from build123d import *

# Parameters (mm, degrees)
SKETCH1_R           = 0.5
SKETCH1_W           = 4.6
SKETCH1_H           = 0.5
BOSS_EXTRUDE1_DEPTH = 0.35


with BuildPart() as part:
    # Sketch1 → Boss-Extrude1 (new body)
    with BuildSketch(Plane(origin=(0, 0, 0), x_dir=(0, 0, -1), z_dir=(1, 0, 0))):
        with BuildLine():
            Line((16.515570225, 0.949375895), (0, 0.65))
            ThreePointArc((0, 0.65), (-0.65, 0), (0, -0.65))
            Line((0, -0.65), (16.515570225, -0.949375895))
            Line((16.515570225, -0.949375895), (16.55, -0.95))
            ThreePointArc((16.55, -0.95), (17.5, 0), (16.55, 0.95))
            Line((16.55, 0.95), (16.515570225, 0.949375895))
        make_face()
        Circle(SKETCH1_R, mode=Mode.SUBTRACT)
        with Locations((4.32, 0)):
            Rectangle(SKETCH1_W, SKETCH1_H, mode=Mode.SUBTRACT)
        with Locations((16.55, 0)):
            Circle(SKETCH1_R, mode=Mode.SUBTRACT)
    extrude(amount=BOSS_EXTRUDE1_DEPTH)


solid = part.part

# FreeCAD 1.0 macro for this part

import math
import FreeCAD as App
import Part
import Sketcher

V = App.Vector


def add_polygon(sketch, points):
    """Adds a closed chain of lines whose ends are joined by coincident constraints."""
    first, n = sketch.GeometryCount, len(points)
    for a, b in zip(points, points[1:] + points[:1]):
        sketch.addGeometry(Part.LineSegment(App.Vector(*a, 0), App.Vector(*b, 0)), False)
    for i in range(n):
        sketch.addConstraint(Sketcher.Constraint("Coincident", first + i, 2, first + (i + 1) % n, 1))

doc = App.newDocument("Part")
params = doc.addObject("Spreadsheet::Sheet", "Params")
for row, (alias, value) in enumerate([
    ("sketch1_diameter", "1 mm"),
    ("sketch1_radius", "0.65 mm"),
    ("sketch1_radius2", "0.95 mm"),
    ("sketch1_width", "0.5 mm"),
    ("sketch1_height", "4.6 mm"),
    ("pad1_length", "0.35 mm"),
], start=1):
    params.set(f"A{row}", alias)
    params.set(f"B{row}", "=" + value)
    params.setAlias(f"B{row}", alias)

body = doc.addObject("PartDesign::Body", "Body")

sketch1 = body.newObject("Sketcher::SketchObject", "Sketch")
sketch1.AttachmentSupport = (doc.getObject("YZ_Plane"), [""])
sketch1.MapMode = "FlatFace"
sketch1.addGeometry(Part.LineSegment(V(0.949376, -16.51557, 0), V(0.65, 0, 0)), False)
sketch1.addGeometry(Part.ArcOfCircle(Part.Circle(V(0, 0, 0), V(0, 0, 1), 0.65), math.radians(0), math.radians(180)), False)
sketch1.addGeometry(Part.LineSegment(V(-0.65, 0, 0), V(-0.949376, -16.51557, 0)), False)
sketch1.addGeometry(Part.LineSegment(V(-0.949376, -16.51557, 0), V(-0.95, -16.55, 0)), False)
sketch1.addGeometry(Part.ArcOfCircle(Part.Circle(V(0, -16.55, 0), V(0, 0, 1), 0.95), math.radians(180), math.radians(360)), False)
sketch1.addGeometry(Part.LineSegment(V(0.95, -16.55, 0), V(0.949376, -16.51557, 0)), False)
sketch1.addGeometry(Part.Circle(V(0, 0, 0), V(0, 0, 1), 0.5), False)
add_polygon(sketch1, [(-0.25, -6.62), (-0.25, -2.02), (0.25, -2.02), (0.25, -6.62)])
sketch1.addGeometry(Part.Circle(V(0, -16.55, 0), V(0, 0, 1), 0.5), False)
sketch1.addConstraint([
    Sketcher.Constraint("Coincident", 0, 2, 1, 1),
    Sketcher.Constraint("Coincident", 1, 2, 2, 1),
    Sketcher.Constraint("Coincident", 2, 2, 3, 1),
    Sketcher.Constraint("Coincident", 3, 2, 4, 1),
    Sketcher.Constraint("Coincident", 4, 2, 5, 1),
    Sketcher.Constraint("Coincident", 5, 2, 0, 1),
    Sketcher.Constraint("Vertical", 7),
    Sketcher.Constraint("Horizontal", 8),
    Sketcher.Constraint("Vertical", 9),
    Sketcher.Constraint("Horizontal", 10),
    Sketcher.Constraint("Coincident", 1, 3, -1, 1),
    Sketcher.Constraint("Coincident", 6, 3, -1, 1),
    Sketcher.Constraint("Coincident", 11, 3, 4, 3),
    Sketcher.Constraint("Equal", 6, 11),
    Sketcher.Constraint("Symmetric", 3, 2, 4, 2, -2),
    Sketcher.Constraint("Symmetric", 2, 2, 5, 2, -2),
    Sketcher.Constraint("PointOnObject", 0, 2, -1),
    Sketcher.Constraint("PointOnObject", 1, 2, -1),
    Sketcher.Constraint("Parallel", 2, 3),
    Sketcher.Constraint("Horizontal", 11, 3, 3, 2),
    Sketcher.Constraint("Diameter", 6, 1.0),
    Sketcher.Constraint("Radius", 1, 0.65),
    Sketcher.Constraint("Radius", 4, 0.95),
    Sketcher.Constraint("DistanceX", 8, 1, 8, 2, 0.5),
    Sketcher.Constraint("DistanceY", 7, 1, 7, 2, 4.6),
    Sketcher.Constraint("DistanceX", 1, 2, 7, 2, 0.4),
    Sketcher.Constraint("DistanceY", 4, 3, -1, 1, 16.55),
    Sketcher.Constraint("DistanceY", 7, 2, -1, 1, 2.02),
    Sketcher.Constraint("DistanceY", 2, 2, -1, 1, 16.51557),
])
sketch1.setExpression("Constraints[24]", "Params.sketch1_diameter")
sketch1.setExpression("Constraints[25]", "Params.sketch1_radius")
sketch1.setExpression("Constraints[26]", "Params.sketch1_radius2")
sketch1.setExpression("Constraints[27]", "Params.sketch1_width")
sketch1.setExpression("Constraints[28]", "Params.sketch1_height")
pad1 = body.newObject("PartDesign::Pad", "Pad")
pad1.Profile = sketch1
pad1.setExpression("Length", "Params.pad1_length")

doc.recompute()
